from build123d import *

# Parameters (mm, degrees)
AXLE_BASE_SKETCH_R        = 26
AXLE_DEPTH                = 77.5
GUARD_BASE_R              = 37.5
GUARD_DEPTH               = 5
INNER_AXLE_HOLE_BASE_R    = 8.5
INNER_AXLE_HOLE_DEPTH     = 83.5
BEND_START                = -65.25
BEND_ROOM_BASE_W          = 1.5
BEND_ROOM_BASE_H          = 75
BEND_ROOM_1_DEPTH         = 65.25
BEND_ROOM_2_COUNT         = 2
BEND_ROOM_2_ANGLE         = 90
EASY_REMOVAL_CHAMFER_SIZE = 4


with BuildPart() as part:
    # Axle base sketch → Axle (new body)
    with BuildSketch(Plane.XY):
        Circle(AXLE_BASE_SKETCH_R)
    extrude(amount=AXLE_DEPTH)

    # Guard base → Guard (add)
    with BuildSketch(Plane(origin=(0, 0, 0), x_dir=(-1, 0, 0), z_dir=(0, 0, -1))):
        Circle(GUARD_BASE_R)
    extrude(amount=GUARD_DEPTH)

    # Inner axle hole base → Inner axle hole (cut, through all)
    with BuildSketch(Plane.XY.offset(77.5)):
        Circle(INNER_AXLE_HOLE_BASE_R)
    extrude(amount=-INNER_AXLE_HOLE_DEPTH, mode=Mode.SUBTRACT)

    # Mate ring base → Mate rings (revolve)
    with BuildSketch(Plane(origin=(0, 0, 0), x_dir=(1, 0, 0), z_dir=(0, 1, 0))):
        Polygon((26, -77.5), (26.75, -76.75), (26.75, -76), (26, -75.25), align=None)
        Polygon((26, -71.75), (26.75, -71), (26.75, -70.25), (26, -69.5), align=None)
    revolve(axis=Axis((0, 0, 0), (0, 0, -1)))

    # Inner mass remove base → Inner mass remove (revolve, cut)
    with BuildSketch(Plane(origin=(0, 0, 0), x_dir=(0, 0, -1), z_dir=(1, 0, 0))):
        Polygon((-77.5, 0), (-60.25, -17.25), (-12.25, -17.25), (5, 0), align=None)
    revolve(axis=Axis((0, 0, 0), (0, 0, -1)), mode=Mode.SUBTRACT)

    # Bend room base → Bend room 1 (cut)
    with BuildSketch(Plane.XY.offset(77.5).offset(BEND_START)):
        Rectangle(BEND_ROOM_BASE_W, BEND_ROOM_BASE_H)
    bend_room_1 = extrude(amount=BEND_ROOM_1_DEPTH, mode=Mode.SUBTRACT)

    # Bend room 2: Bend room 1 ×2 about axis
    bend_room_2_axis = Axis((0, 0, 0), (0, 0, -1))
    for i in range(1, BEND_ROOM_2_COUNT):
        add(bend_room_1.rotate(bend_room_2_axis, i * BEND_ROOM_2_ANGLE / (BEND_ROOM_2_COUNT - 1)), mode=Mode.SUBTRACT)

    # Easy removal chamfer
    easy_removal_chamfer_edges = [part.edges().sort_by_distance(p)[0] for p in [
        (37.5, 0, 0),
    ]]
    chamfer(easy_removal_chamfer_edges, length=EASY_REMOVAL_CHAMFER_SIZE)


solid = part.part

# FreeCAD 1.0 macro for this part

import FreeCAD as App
import Part
import Sketcher
Q = App.Units.Quantity


def edges_at(feature, points):
    """Names of the edges that pass closest to the given points."""
    edges = feature.Shape.Edges
    near = lambda p: min(range(len(edges)), key=lambda i: edges[i].distToShape(Part.Vertex(*p))[0])
    return sorted({f"Edge{near(p) + 1}" for p in points})

doc = App.newDocument("Part")
body = doc.addObject("PartDesign::Body", "Body")

sketch1 = body.newObject("Sketcher::SketchObject", "Sketch")
sketch1.AttachmentSupport = (doc.getObject("XY_Plane"), [""])
sketch1.MapMode = "FlatFace"
sketch1.addGeometry(Part.Circle(App.Vector(0, 0, 0), App.Vector(0, 0, 1), 26), False)
sketch1.addConstraint([
    Sketcher.Constraint("Coincident", 0, 3, -1, 1),
    Sketcher.Constraint("Diameter", 0, Q("52 mm")),
])
pad1 = body.newObject("PartDesign::Pad", "Pad")
pad1.Profile = sketch1
pad1.Length = 77.5

sketch2 = body.newObject("Sketcher::SketchObject", "Sketch001")
sketch2.AttachmentSupport = (doc.getObject("XY_Plane"), [""])
sketch2.MapMode = "FlatFace"
sketch2.addGeometry(Part.Circle(App.Vector(0, 0, 0), App.Vector(0, 0, 1), 38), False)
sketch2.addConstraint([
    Sketcher.Constraint("Coincident", 0, 3, -1, 1),
    Sketcher.Constraint("Diameter", 0, Q("75 mm")),
])
pad2 = body.newObject("PartDesign::Pad", "Pad001")
pad2.Profile = sketch2
pad2.Length = 5
pad2.Reversed = True

sketch3 = body.newObject("Sketcher::SketchObject", "Sketch002")
sketch3.AttachmentSupport = (doc.getObject("XY_Plane"), [""])
sketch3.MapMode = "FlatFace"
sketch3.AttachmentOffset = App.Placement(App.Vector(0, 0, 77.5), App.Rotation())
sketch3.addGeometry(Part.Circle(App.Vector(0, 0, 0), App.Vector(0, 0, 1), 8), False)
sketch3.addConstraint([
    Sketcher.Constraint("Coincident", 0, 3, -1, 1),
    Sketcher.Constraint("Diameter", 0, Q("17 mm")),
])
pocket1 = body.newObject("PartDesign::Pocket", "Pocket")
pocket1.Profile = sketch3
pocket1.Type = "ThroughAll"

sketch4 = body.newObject("Sketcher::SketchObject", "Sketch003")
sketch4.AttachmentSupport = (doc.getObject("XZ_Plane"), [""])
sketch4.MapMode = "FlatFace"
sketch4.addGeometry([
    Part.LineSegment(App.Vector(26, 77.5, 0), App.Vector(26.8, 76.8, 0)),
    Part.LineSegment(App.Vector(26.8, 76.8, 0), App.Vector(26.8, 76, 0)),
    Part.LineSegment(App.Vector(26.8, 76, 0), App.Vector(26, 75.2, 0)),
    Part.LineSegment(App.Vector(26, 75.2, 0), App.Vector(26, 77.5, 0)),
    Part.LineSegment(App.Vector(26, 71.8, 0), App.Vector(26.8, 71, 0)),
    Part.LineSegment(App.Vector(26.8, 71, 0), App.Vector(26.8, 70.2, 0)),
    Part.LineSegment(App.Vector(26.8, 70.2, 0), App.Vector(26, 69.5, 0)),
    Part.LineSegment(App.Vector(26, 69.5, 0), App.Vector(26, 71.8, 0)),
], False)
sketch4.addConstraint([
    Sketcher.Constraint("Coincident", 0, 2, 1, 1),
    Sketcher.Constraint("Coincident", 1, 2, 2, 1),
    Sketcher.Constraint("Coincident", 2, 2, 3, 1),
    Sketcher.Constraint("Coincident", 3, 2, 0, 1),
    Sketcher.Constraint("Coincident", 4, 2, 5, 1),
    Sketcher.Constraint("Coincident", 5, 2, 6, 1),
    Sketcher.Constraint("Coincident", 6, 2, 7, 1),
    Sketcher.Constraint("Coincident", 7, 2, 4, 1),
    Sketcher.Constraint("Vertical", 1),
    Sketcher.Constraint("Vertical", 3),
    Sketcher.Constraint("Vertical", 5),
    Sketcher.Constraint("Vertical", 7),
    Sketcher.Constraint("Perpendicular", 0, 2),
    Sketcher.Constraint("Perpendicular", 2, 4),
    Sketcher.Constraint("Perpendicular", 4, 6),
    Sketcher.Constraint("Vertical", 1, 2, 4, 2),
    Sketcher.Constraint("Vertical", 3, 2, 6, 2),
    Sketcher.Constraint("Equal", 1, 5),
    Sketcher.Constraint("Equal", 0, 2),
    Sketcher.Constraint("DistanceY", -1, 1, 1, 2, Q("76 mm")),
    Sketcher.Constraint("DistanceX", -1, 1, 2, 2, Q("26 mm")),
    Sketcher.Constraint("DistanceY", -1, 1, 4, 2, Q("71 mm")),
    Sketcher.Constraint("DistanceY", 5, 2, 2, 2, Q("5 mm")),
    Sketcher.Constraint("DistanceY", 1, 2, 1, 1, Q("0.75 mm")),
])
revolution = body.newObject("PartDesign::Revolution", "Revolution")
revolution.Profile = sketch4
revolution.ReferenceAxis = (sketch4, ["V_Axis"])
revolution.Angle = 360

sketch5 = body.newObject("Sketcher::SketchObject", "Sketch004")
sketch5.AttachmentSupport = (doc.getObject("YZ_Plane"), [""])
sketch5.MapMode = "FlatFace"
sketch5.addGeometry([
    Part.LineSegment(App.Vector(0, 78, 0), App.Vector(-17, 60, 0)),
    Part.LineSegment(App.Vector(-17, 60, 0), App.Vector(-17, 12, 0)),
    Part.LineSegment(App.Vector(-17, 12, 0), App.Vector(0, -5, 0)),
    Part.LineSegment(App.Vector(0, -5, 0), App.Vector(0, 78, 0)),
], False)
sketch5.addConstraint([
    Sketcher.Constraint("Coincident", 0, 2, 1, 1),
    Sketcher.Constraint("Coincident", 1, 2, 2, 1),
    Sketcher.Constraint("Coincident", 2, 2, 3, 1),
    Sketcher.Constraint("Coincident", 3, 2, 0, 1),
    Sketcher.Constraint("Vertical", 1),
    Sketcher.Constraint("Vertical", 3),
    Sketcher.Constraint("PointOnObject", 2, 2, -2),
    Sketcher.Constraint("Perpendicular", 0, 2),
    Sketcher.Constraint("Equal", 0, 2),
    Sketcher.Constraint("DistanceY", 1, 2, 1, 1, Q("48 mm")),
    Sketcher.Constraint("DistanceY", 3, 1, 3, 2, Q("82.5 mm")),
    Sketcher.Constraint("DistanceY", 2, 2, -1, 1, Q("5 mm")),
])
groove = body.newObject("PartDesign::Groove", "Groove")
groove.Profile = sketch5
groove.ReferenceAxis = (sketch5, ["V_Axis"])
groove.Angle = 360

sketch6 = body.newObject("Sketcher::SketchObject", "Sketch005")
sketch6.AttachmentSupport = (doc.getObject("XY_Plane"), [""])
sketch6.MapMode = "FlatFace"
sketch6.AttachmentOffset = App.Placement(App.Vector(0, 0, 12.25), App.Rotation())
sketch6.addGeometry([
    Part.LineSegment(App.Vector(-0.8, 37.5, 0), App.Vector(-0.8, -37.5, 0)),
    Part.LineSegment(App.Vector(-0.8, -37.5, 0), App.Vector(0.8, -37.5, 0)),
    Part.LineSegment(App.Vector(0.8, -37.5, 0), App.Vector(0.8, 37.5, 0)),
    Part.LineSegment(App.Vector(0.8, 37.5, 0), App.Vector(-0.8, 37.5, 0)),
], False)
sketch6.addConstraint([
    Sketcher.Constraint("Coincident", 0, 2, 1, 1),
    Sketcher.Constraint("Coincident", 1, 2, 2, 1),
    Sketcher.Constraint("Coincident", 2, 2, 3, 1),
    Sketcher.Constraint("Coincident", 3, 2, 0, 1),
    Sketcher.Constraint("Vertical", 0),
    Sketcher.Constraint("Horizontal", 1),
    Sketcher.Constraint("Vertical", 2),
    Sketcher.Constraint("Horizontal", 3),
    Sketcher.Constraint("Symmetric", 0, 2, 2, 2, -1, 1),
    Sketcher.Constraint("DistanceY", 0, 2, 0, 1, Q("75 mm")),
    Sketcher.Constraint("DistanceX", 1, 1, 1, 2, Q("1.5 mm")),
])
pocket2 = body.newObject("PartDesign::Pocket", "Pocket001")
pocket2.Profile = sketch6
pocket2.Length = 65.25
pocket2.Reversed = True
doc.recompute()

polarpattern = body.newObject("PartDesign::PolarPattern", "PolarPattern")
polarpattern.Originals = [pocket2]
polarpattern.Axis = (doc.getObject("Z_Axis"), [""])
polarpattern.Angle = 90
polarpattern.Occurrences = 2
polarpattern.Reversed = True
body.Tip = polarpattern
doc.recompute()

chamfer = body.newObject("PartDesign::Chamfer", "Chamfer")
chamfer.Base = (polarpattern, edges_at(polarpattern, [(37.5, 0, 0)]))
chamfer.Size = 4

doc.recompute()
